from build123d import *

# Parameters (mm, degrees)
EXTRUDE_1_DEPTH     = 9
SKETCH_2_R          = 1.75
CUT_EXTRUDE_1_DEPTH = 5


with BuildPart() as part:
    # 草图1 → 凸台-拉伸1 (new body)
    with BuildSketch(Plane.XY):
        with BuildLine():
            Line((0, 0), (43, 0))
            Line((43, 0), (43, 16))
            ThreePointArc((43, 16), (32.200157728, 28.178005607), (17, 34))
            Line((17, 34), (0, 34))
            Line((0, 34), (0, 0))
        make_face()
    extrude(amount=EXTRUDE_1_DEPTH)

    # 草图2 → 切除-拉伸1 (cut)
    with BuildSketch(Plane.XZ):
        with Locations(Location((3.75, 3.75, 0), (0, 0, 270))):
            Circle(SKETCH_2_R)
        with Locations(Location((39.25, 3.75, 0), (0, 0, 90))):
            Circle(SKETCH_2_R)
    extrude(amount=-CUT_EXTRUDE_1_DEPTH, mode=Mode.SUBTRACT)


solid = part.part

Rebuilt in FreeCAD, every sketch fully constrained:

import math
import FreeCAD as App
import Part
import Sketcher

V = App.Vector

doc = App.newDocument("Part")
body = doc.addObject("PartDesign::Body", "Body")

sketch1 = doc.addObject("Sketcher::SketchObject", "Sketch")
body.addObject(sketch1)
sketch1.AttachmentSupport = (doc.XY_Plane, [""])
sketch1.MapMode = "FlatFace"
sketch1.addGeometry([
    Part.LineSegment(V(0, 0, 0), V(43, 0, 0)),
    Part.LineSegment(V(43, 0, 0), V(43, 16, 0)),
    Part.ArcOfCircle(Part.Circle(V(13, 0, 0), V(0, 0, 1), 34), math.radians(28), math.radians(83)),
    Part.LineSegment(V(17, 34, 0), V(0, 34, 0)),
    Part.LineSegment(V(0, 34, 0), V(0, 0, 0)),
], False)
sketch1.addConstraint([
    Sketcher.Constraint("Coincident", 0, 2, 1, 1),
    Sketcher.Constraint("Coincident", 1, 2, 2, 1),
    Sketcher.Constraint("Coincident", 2, 2, 3, 1),
    Sketcher.Constraint("Coincident", 3, 2, 4, 1),
    Sketcher.Constraint("Coincident", 4, 2, 0, 1),
    Sketcher.Constraint("Horizontal", 0),
    Sketcher.Constraint("Vertical", 1),
    Sketcher.Constraint("Horizontal", 3),
    Sketcher.Constraint("Vertical", 4),
    Sketcher.Constraint("Coincident", 4, 2, -1, 1),
    Sketcher.Constraint("PointOnObject", 2, 3, -1),
    Sketcher.Constraint("DistanceX", 0, 1, 0, 2, 43.0),
    Sketcher.Constraint("DistanceX", 3, 2, 3, 1, 17.0),
    Sketcher.Constraint("DistanceY", 1, 1, 1, 2, 16.0),
    Sketcher.Constraint("DistanceY", 4, 2, 4, 1, 34.0),
])
pad1 = doc.addObject("PartDesign::Pad", "Pad")
body.addObject(pad1)
pad1.Profile = sketch1
pad1.Length = 9

sketch2 = doc.addObject("Sketcher::SketchObject", "Sketch001")
body.addObject(sketch2)
sketch2.AttachmentSupport = (doc.XZ_Plane, [""])
sketch2.MapMode = "FlatFace"
sketch2.addGeometry([
    Part.Circle(V(3.8, 3.8, 0), V(0, 0, 1), 1.8),
    Part.Circle(V(39.2, 3.8, 0), V(0, 0, 1), 1.8),
], False)
sketch2.addConstraint([
    Sketcher.Constraint("Equal", 0, 1),
    Sketcher.Constraint("Horizontal", 0, 3, 1, 3),
    Sketcher.Constraint("Diameter", 0, 3.5),
    Sketcher.Constraint("DistanceX", 0, 3, 1, 3, 35.5),
    Sketcher.Constraint("DistanceX", -1, 1, 0, 3, 3.75),
    Sketcher.Constraint("DistanceY", -1, 1, 0, 3, 3.75),
])
pocket1 = doc.addObject("PartDesign::Pocket", "Pocket")
body.addObject(pocket1)
pocket1.Profile = sketch2
pocket1.Length = 5

doc.recompute()
